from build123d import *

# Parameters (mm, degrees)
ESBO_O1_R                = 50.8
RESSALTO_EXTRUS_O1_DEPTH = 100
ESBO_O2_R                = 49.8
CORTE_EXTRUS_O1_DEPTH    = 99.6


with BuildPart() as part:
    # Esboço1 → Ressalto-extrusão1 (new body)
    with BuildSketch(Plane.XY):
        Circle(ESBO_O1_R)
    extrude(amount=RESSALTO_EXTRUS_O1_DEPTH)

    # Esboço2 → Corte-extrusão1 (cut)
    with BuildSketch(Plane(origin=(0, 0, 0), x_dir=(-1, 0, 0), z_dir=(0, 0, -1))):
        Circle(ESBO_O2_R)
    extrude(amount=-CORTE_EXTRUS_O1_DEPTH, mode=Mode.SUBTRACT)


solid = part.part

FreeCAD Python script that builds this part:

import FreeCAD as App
import Part
import Sketcher
from FreeCAD import Vector

doc = App.newDocument("Part")
body = doc.addObject("PartDesign::Body", "Body")

# Sketch on XY plane
sketch1 = body.newObject("Sketcher::SketchObject", "Sketch")
sketch1.AttachmentSupport = (doc.getObject("XY_Plane"), [""])
sketch1.MapMode = "FlatFace"
sketch1.addGeometry(Part.Circle(Vector(0, 0, 0), Vector(0, 0, 1), 50.8), False)
sketch1.addConstraint([
    Sketcher.Constraint("Coincident", 0, 3, -1, 1),
    Sketcher.Constraint("Diameter", 0, 101.6),
])
pad1 = body.newObject("PartDesign::Pad", "Pad")
pad1.Profile = sketch1
pad1.Length = 100

# Sketch on XY plane
sketch2 = body.newObject("Sketcher::SketchObject", "Sketch001")
sketch2.AttachmentSupport = (doc.getObject("XY_Plane"), [""])
sketch2.MapMode = "FlatFace"
sketch2.addGeometry(Part.Circle(Vector(0, 0, 0), Vector(0, 0, 1), 49.8), False)
sketch2.addConstraint([
    Sketcher.Constraint("Coincident", 0, 3, -1, 1),
    Sketcher.Constraint("Diameter", 0, 99.6),
])
pocket1 = body.newObject("PartDesign::Pocket", "Pocket")
pocket1.Profile = sketch2
pocket1.Length = 99.6
pocket1.Reversed = True

doc.recompute()
